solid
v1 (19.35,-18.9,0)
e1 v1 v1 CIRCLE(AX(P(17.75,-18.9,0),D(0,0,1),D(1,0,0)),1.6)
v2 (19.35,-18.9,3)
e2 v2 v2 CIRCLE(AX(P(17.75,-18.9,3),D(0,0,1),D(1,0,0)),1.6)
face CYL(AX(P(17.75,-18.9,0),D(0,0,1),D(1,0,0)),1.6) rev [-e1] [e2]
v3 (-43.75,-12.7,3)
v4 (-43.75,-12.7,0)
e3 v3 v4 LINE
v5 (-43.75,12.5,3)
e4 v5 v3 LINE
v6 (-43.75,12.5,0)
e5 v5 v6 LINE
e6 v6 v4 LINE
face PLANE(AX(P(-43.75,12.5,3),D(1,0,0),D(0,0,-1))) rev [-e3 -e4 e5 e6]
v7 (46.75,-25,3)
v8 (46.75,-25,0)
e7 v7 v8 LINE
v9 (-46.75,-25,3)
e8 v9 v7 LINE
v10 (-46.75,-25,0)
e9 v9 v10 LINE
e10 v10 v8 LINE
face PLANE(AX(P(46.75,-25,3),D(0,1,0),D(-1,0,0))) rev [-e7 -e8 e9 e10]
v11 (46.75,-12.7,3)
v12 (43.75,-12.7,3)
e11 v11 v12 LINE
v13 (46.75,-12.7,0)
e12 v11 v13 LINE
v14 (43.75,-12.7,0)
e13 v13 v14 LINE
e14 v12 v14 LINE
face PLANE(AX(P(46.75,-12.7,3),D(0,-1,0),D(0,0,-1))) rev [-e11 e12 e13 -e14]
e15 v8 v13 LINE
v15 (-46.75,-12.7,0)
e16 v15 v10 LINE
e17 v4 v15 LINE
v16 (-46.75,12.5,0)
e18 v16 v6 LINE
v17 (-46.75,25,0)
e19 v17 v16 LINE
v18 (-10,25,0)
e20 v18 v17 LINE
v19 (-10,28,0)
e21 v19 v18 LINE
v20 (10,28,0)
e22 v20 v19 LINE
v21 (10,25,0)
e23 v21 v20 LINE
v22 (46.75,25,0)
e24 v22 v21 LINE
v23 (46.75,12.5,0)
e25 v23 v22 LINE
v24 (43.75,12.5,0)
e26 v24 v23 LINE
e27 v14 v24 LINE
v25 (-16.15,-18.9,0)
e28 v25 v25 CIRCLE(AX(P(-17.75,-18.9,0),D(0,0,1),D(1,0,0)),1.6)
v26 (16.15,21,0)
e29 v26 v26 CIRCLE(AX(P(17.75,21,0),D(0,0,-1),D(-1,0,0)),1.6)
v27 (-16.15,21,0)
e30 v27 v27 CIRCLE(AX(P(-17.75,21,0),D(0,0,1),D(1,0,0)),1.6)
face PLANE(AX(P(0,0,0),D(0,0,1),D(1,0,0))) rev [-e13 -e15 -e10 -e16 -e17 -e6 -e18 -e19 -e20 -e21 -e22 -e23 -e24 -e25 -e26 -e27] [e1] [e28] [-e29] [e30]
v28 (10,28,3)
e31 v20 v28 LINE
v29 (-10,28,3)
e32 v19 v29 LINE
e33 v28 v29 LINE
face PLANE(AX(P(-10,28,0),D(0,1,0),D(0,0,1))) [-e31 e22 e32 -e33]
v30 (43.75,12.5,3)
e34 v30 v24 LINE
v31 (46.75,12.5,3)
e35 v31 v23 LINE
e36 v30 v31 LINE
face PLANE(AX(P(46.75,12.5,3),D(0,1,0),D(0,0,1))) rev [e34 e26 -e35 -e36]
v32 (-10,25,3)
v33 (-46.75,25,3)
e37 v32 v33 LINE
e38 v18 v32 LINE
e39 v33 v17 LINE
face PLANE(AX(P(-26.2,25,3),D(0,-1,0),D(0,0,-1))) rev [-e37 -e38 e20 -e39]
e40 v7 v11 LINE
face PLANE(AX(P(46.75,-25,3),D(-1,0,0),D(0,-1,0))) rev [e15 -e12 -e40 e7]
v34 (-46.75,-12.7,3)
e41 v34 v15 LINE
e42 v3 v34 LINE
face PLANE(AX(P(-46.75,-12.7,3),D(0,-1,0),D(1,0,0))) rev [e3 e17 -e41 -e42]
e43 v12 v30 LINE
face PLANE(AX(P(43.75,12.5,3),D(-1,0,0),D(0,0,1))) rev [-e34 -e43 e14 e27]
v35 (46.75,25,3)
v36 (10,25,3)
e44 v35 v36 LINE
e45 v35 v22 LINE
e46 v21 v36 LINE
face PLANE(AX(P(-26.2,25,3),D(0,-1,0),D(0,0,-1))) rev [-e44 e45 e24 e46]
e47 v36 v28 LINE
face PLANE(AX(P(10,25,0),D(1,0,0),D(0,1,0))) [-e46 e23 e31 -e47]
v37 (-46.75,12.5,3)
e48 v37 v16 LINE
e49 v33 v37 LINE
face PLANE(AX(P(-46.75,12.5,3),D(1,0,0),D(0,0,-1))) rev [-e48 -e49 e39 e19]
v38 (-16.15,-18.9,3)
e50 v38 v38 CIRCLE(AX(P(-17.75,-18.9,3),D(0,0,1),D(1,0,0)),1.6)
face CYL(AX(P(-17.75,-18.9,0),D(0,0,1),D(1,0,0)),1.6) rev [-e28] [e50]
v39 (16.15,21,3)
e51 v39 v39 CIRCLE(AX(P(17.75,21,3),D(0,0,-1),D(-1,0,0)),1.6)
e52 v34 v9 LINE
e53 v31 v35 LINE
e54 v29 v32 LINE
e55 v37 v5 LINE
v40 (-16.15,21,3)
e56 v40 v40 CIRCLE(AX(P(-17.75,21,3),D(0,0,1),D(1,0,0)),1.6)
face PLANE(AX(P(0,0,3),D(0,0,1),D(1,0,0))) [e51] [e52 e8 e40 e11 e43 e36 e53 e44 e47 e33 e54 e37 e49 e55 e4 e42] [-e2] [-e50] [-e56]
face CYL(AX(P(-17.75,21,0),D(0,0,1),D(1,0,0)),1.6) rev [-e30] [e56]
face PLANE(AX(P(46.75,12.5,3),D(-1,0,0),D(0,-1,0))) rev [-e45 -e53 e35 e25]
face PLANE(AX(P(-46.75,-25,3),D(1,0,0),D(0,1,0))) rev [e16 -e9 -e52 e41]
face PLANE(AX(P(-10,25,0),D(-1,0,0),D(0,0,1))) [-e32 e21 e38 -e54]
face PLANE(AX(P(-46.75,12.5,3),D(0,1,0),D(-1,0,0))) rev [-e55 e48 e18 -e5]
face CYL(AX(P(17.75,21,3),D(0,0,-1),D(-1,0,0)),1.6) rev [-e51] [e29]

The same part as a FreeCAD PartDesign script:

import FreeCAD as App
import Part
import Sketcher

V = App.Vector
Q = App.Units.Quantity

doc = App.newDocument("Part")
params = doc.addObject("Spreadsheet::Sheet", "Params")
for row, (alias, value) in enumerate([
    ("sketch1_width", "3 mm"),
    ("sketch1_width2", "93.5 mm"),
    ("sketch1_height", "12.3 mm"),
    ("sketch1_height2", "25.2 mm"),
    ("sketch1_height3", "12.5 mm"),
    ("pad1_length", "3 mm"),
    ("sketch2_width", "20 mm"),
    ("sketch2_height", "3 mm"),
    ("pad2_length", "3 mm"),
    ("sketch3_diameter", "3.2 mm"),
    ("sketch4_diameter", "3.2 mm"),
    ("sketch5_diameter", "3.2 mm"),
], start=1):
    params.set(f"A{row}", alias)
    params.set(f"B{row}", "=" + value)
    params.setAlias(f"B{row}", alias)

body = doc.addObject("PartDesign::Body", "Body")

# Sketch on XY plane
sketch1 = body.newObject("Sketcher::SketchObject", "Sketch")
sketch1.AttachmentSupport = (doc.getObject("XY_Plane"), [""])
sketch1.MapMode = "FlatFace"
sketch1.addGeometry([
    Part.LineSegment(V(-46.8, -25, 0), V(46.8, -25, 0)),  # 0
    Part.LineSegment(V(46.8, -25, 0), V(46.8, -12.7, 0)),  # 1
    Part.LineSegment(V(46.8, -12.7, 0), V(43.8, -12.7, 0)),  # 2
    Part.LineSegment(V(43.8, -12.7, 0), V(43.8, 12.5, 0)),  # 3
    Part.LineSegment(V(43.8, 12.5, 0), V(46.8, 12.5, 0)),  # 4
    Part.LineSegment(V(46.8, 12.5, 0), V(46.8, 25, 0)),  # 5
    Part.LineSegment(V(46.8, 25, 0), V(-46.8, 25, 0)),  # 6
    Part.LineSegment(V(-46.8, 25, 0), V(-46.8, 12.5, 0)),  # 7
    Part.LineSegment(V(-46.8, 12.5, 0), V(-43.8, 12.5, 0)),  # 8
    Part.LineSegment(V(-43.8, 12.5, 0), V(-43.8, -12.7, 0)),  # 9
    Part.LineSegment(V(-43.8, -12.7, 0), V(-46.8, -12.7, 0)),  # 10
    Part.LineSegment(V(-46.8, -12.7, 0), V(-46.8, -25, 0)),  # 11
], False)
sketch1.addConstraint([
    Sketcher.Constraint("Coincident", 0, 2, 1, 1),
    Sketcher.Constraint("Coincident", 1, 2, 2, 1),
    Sketcher.Constraint("Coincident", 2, 2, 3, 1),
    Sketcher.Constraint("Coincident", 3, 2, 4, 1),
    Sketcher.Constraint("Coincident", 4, 2, 5, 1),
    Sketcher.Constraint("Coincident", 5, 2, 6, 1),
    Sketcher.Constraint("Coincident", 6, 2, 7, 1),
    Sketcher.Constraint("Coincident", 7, 2, 8, 1),
    Sketcher.Constraint("Coincident", 8, 2, 9, 1),
    Sketcher.Constraint("Coincident", 9, 2, 10, 1),
    Sketcher.Constraint("Coincident", 10, 2, 11, 1),
    Sketcher.Constraint("Coincident", 11, 2, 0, 1),
    Sketcher.Constraint("Horizontal", 0),
    Sketcher.Constraint("Vertical", 1),
    Sketcher.Constraint("Horizontal", 2),
    Sketcher.Constraint("Vertical", 3),
    Sketcher.Constraint("Horizontal", 4),
    Sketcher.Constraint("Vertical", 5),
    Sketcher.Constraint("Horizontal", 6),
    Sketcher.Constraint("Vertical", 7),
    Sketcher.Constraint("Horizontal", 8),
    Sketcher.Constraint("Vertical", 9),
    Sketcher.Constraint("Horizontal", 10),
    Sketcher.Constraint("Vertical", 11),
    Sketcher.Constraint("Symmetric", 0, 2, 6, 2, -1, 1),
    Sketcher.Constraint("Symmetric", 4, 2, 7, 2, -2),
    Sketcher.Constraint("Symmetric", 2, 2, 9, 2, -2),
    Sketcher.Constraint("Vertical", 7, 2, 10, 2),
    Sketcher.Constraint("DistanceX", 2, 2, 2, 1, Q("3 mm")),
    Sketcher.Constraint("DistanceX", 0, 1, 0, 2, Q("93.5 mm")),
    Sketcher.Constraint("DistanceY", 1, 1, 1, 2, Q("12.3 mm")),
    Sketcher.Constraint("DistanceY", 3, 1, 3, 2, Q("25.2 mm")),
    Sketcher.Constraint("DistanceY", 5, 1, 5, 2, Q("12.5 mm")),
])
sketch1.setExpression("Constraints[28]", "Params.sketch1_width")
sketch1.setExpression("Constraints[29]", "Params.sketch1_width2")
sketch1.setExpression("Constraints[30]", "Params.sketch1_height")
sketch1.setExpression("Constraints[31]", "Params.sketch1_height2")
sketch1.setExpression("Constraints[32]", "Params.sketch1_height3")
pad1 = body.newObject("PartDesign::Pad", "Pad")
pad1.Profile = sketch1
pad1.setExpression("Length", "Params.pad1_length")

# Sketch on XY plane
sketch2 = body.newObject("Sketcher::SketchObject", "Sketch001")
sketch2.AttachmentSupport = (doc.getObject("XY_Plane"), [""])
sketch2.MapMode = "FlatFace"
sketch2.AttachmentOffset = App.Placement(V(0, 0, 3), App.Rotation())
sketch2.addGeometry([
    Part.LineSegment(V(-10, 28, 0), V(-10, 25, 0)),
    Part.LineSegment(V(-10, 25, 0), V(10, 25, 0)),
    Part.LineSegment(V(10, 25, 0), V(10, 28, 0)),
    Part.LineSegment(V(10, 28, 0), V(-10, 28, 0)),
], False)
sketch2.addConstraint([
    Sketcher.Constraint("Coincident", 0, 2, 1, 1),
    Sketcher.Constraint("Coincident", 1, 2, 2, 1),
    Sketcher.Constraint("Coincident", 2, 2, 3, 1),
    Sketcher.Constraint("Coincident", 3, 2, 0, 1),
    Sketcher.Constraint("Vertical", 0),
    Sketcher.Constraint("Horizontal", 1),
    Sketcher.Constraint("Vertical", 2),
    Sketcher.Constraint("Horizontal", 3),
    Sketcher.Constraint("DistanceX", 1, 1, 1, 2, Q("20 mm")),
    Sketcher.Constraint("DistanceY", 0, 2, 0, 1, Q("3 mm")),
    Sketcher.Constraint("DistanceX", 0, 2, -1, 1, Q("10 mm")),
    Sketcher.Constraint("DistanceY", -1, 1, 0, 2, Q("25 mm")),
])
sketch2.setExpression("Constraints[8]", "Params.sketch2_width")
sketch2.setExpression("Constraints[9]", "Params.sketch2_height")
pad2 = body.newObject("PartDesign::Pad", "Pad001")
pad2.Profile = sketch2
pad2.setExpression("Length", "Params.pad2_length")
pad2.Reversed = True

# Sketch on XY plane
sketch3 = body.newObject("Sketcher::SketchObject", "Sketch002")
sketch3.AttachmentSupport = (doc.getObject("XY_Plane"), [""])
sketch3.MapMode = "FlatFace"
sketch3.AttachmentOffset = App.Placement(V(0, 0, 3), App.Rotation())
sketch3.addGeometry(Part.Circle(V(-17.8, 21, 0), V(0, 0, 1), 1.6), False)
sketch3.addConstraint([
    Sketcher.Constraint("Diameter", 0, Q("3.2 mm")),
    Sketcher.Constraint("DistanceY", -1, 1, 0, 3, Q("21 mm")),
    Sketcher.Constraint("DistanceX", 0, 3, -1, 1, Q("17.75 mm")),
])
sketch3.setExpression("Constraints[0]", "Params.sketch3_diameter")
pocket1 = body.newObject("PartDesign::Pocket", "Pocket")
pocket1.Profile = sketch3
pocket1.Type = "ThroughAll"

# Sketch on XY plane
sketch4 = body.newObject("Sketcher::SketchObject", "Sketch003")
sketch4.AttachmentSupport = (doc.getObject("XY_Plane"), [""])
sketch4.MapMode = "FlatFace"
sketch4.addGeometry(Part.Circle(V(17.8, 21, 0), V(0, 0, 1), 1.6), False)
sketch4.addConstraint([
    Sketcher.Constraint("Diameter", 0, Q("3.2 mm")),
    Sketcher.Constraint("DistanceY", -1, 1, 0, 3, Q("21 mm")),
    Sketcher.Constraint("DistanceX", -1, 1, 0, 3, Q("17.75 mm")),
])
sketch4.setExpression("Constraints[0]", "Params.sketch4_diameter")
pocket2 = body.newObject("PartDesign::Pocket", "Pocket001")
pocket2.Profile = sketch4
pocket2.Type = "ThroughAll"
pocket2.Reversed = True

# Sketch on XY plane
sketch5 = body.newObject("Sketcher::SketchObject", "Sketch004")
sketch5.AttachmentSupport = (doc.getObject("XY_Plane"), [""])
sketch5.MapMode = "FlatFace"
sketch5.AttachmentOffset = App.Placement(V(0, 0, 3), App.Rotation())
sketch5.addGeometry([
    Part.Circle(V(17.8, -18.9, 0), V(0, 0, 1), 1.6),
    Part.Circle(V(-17.8, -18.9, 0), V(0, 0, 1), 1.6),
], False)
sketch5.addConstraint([
    Sketcher.Constraint("Equal", 0, 1),
    Sketcher.Constraint("Symmetric", 0, 3, 1, 3, -2),
    Sketcher.Constraint("Diameter", 0, Q("3.2 mm")),
    Sketcher.Constraint("DistanceY", 0, 3, -1, 1, Q("18.9 mm")),
    Sketcher.Constraint("DistanceX", 1, 3, 0, 3, Q("35.5 mm")),
])
sketch5.setExpression("Constraints[2]", "Params.sketch5_diameter")
pocket3 = body.newObject("PartDesign::Pocket", "Pocket002")
pocket3.Profile = sketch5
pocket3.Type = "ThroughAll"

doc.recompute()
